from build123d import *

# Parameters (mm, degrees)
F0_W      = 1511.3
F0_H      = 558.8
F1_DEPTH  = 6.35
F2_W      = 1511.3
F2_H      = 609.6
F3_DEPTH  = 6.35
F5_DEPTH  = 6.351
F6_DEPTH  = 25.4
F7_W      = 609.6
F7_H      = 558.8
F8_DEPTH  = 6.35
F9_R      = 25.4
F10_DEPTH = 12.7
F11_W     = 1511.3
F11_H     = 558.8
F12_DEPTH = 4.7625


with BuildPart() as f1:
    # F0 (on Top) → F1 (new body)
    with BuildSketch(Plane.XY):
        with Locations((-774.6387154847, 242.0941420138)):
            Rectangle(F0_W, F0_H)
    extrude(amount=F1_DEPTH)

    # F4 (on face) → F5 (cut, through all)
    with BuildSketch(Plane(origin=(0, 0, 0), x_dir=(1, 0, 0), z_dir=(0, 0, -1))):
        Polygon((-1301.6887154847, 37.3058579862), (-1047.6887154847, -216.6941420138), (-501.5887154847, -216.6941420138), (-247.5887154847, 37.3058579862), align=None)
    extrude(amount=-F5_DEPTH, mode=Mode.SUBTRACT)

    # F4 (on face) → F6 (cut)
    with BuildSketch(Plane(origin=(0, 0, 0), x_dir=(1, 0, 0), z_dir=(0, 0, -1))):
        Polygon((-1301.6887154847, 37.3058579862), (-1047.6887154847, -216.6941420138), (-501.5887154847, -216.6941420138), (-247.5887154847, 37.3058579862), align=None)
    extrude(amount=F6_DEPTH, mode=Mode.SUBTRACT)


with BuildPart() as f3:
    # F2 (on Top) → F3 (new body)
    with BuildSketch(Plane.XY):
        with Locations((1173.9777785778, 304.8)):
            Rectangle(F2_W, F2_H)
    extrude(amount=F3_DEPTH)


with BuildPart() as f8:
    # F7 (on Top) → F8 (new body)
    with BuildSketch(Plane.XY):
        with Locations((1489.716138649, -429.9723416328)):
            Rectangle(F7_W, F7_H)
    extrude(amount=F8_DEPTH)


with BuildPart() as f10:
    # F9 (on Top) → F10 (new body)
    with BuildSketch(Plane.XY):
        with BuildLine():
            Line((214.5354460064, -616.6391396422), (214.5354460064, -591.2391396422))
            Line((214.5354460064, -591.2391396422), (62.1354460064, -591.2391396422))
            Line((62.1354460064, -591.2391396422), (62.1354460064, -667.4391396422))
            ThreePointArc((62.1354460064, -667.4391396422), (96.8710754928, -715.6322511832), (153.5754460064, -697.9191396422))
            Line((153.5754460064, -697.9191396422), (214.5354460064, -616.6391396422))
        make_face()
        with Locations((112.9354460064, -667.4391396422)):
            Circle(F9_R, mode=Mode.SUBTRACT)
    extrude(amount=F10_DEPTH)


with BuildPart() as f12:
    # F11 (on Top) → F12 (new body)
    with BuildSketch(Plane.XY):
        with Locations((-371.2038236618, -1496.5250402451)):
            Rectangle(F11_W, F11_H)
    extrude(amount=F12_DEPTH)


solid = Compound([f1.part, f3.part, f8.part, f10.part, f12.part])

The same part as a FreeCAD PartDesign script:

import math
import FreeCAD as App
import Part
import Sketcher
from FreeCAD import Vector
Q = App.Units.Quantity

doc = App.newDocument("Part")
body = doc.addObject("PartDesign::Body", "Body")

# Sketch on XY plane
sketch1 = body.newObject("Sketcher::SketchObject", "Sketch")
sketch1.AttachmentSupport = (doc.getObject("XY_Plane"), [""])
sketch1.MapMode = "FlatFace"
sketch1.addGeometry([
    Part.LineSegment(Vector(-1530.288715, 521.494142, 0), Vector(-1530.288715, -37.305858, 0)),
    Part.LineSegment(Vector(-1530.288715, -37.305858, 0), Vector(-18.988715, -37.305858, 0)),
    Part.LineSegment(Vector(-18.988715, -37.305858, 0), Vector(-18.988715, 521.494142, 0)),
    Part.LineSegment(Vector(-18.988715, 521.494142, 0), Vector(-1530.288715, 521.494142, 0)),
], False)
sketch1.addConstraint([
    Sketcher.Constraint("Coincident", 0, 2, 1, 1),
    Sketcher.Constraint("Coincident", 1, 2, 2, 1),
    Sketcher.Constraint("Coincident", 2, 2, 3, 1),
    Sketcher.Constraint("Coincident", 3, 2, 0, 1),
    Sketcher.Constraint("Vertical", 0),
    Sketcher.Constraint("Horizontal", 1),
    Sketcher.Constraint("Vertical", 2),
    Sketcher.Constraint("Horizontal", 3),
    Sketcher.Constraint("DistanceY", 0, 2, 0, 1, Q("22 in")),
    Sketcher.Constraint("DistanceX", 1, 1, 1, 2, Q("59.5 in")),
    Sketcher.Constraint("DistanceX", 0, 2, -1, 1, Q("1530.288715 mm")),
    Sketcher.Constraint("DistanceY", 0, 2, -1, 1, Q("37.305858 mm")),
])
pad1 = body.newObject("PartDesign::Pad", "Pad")
pad1.Profile = sketch1
pad1.Length = Q("0.25 in")

# Sketch on XY plane
sketch2 = body.newObject("Sketcher::SketchObject", "Sketch001")
sketch2.AttachmentSupport = (doc.getObject("XY_Plane"), [""])
sketch2.MapMode = "FlatFace"
sketch2.addGeometry([
    Part.LineSegment(Vector(-1301.688715, -37.305858, 0), Vector(-1047.688715, 216.694142, 0)),
    Part.LineSegment(Vector(-1047.688715, 216.694142, 0), Vector(-501.588715, 216.694142, 0)),
    Part.LineSegment(Vector(-501.588715, 216.694142, 0), Vector(-247.588715, -37.305858, 0)),
    Part.LineSegment(Vector(-247.588715, -37.305858, 0), Vector(-1301.688715, -37.305858, 0)),
], False)
sketch2.addConstraint([
    Sketcher.Constraint("Coincident", 0, 2, 1, 1),
    Sketcher.Constraint("Coincident", 1, 2, 2, 1),
    Sketcher.Constraint("Coincident", 2, 2, 3, 1),
    Sketcher.Constraint("Coincident", 3, 2, 0, 1),
    Sketcher.Constraint("Horizontal", 1),
    Sketcher.Constraint("Horizontal", 3),
    Sketcher.Constraint("Perpendicular", 0, 2),
    Sketcher.Constraint("Equal", 0, 2),
    Sketcher.Constraint("DistanceX", 1, 1, 1, 2, Q("21.5 in")),
    Sketcher.Constraint("DistanceX", 3, 2, 3, 1, Q("41.5 in")),
    Sketcher.Constraint("DistanceX", 0, 2, -1, 1, Q("1047.688715 mm")),
    Sketcher.Constraint("DistanceY", -1, 1, 0, 2, Q("216.694142 mm")),
])
pocket1 = body.newObject("PartDesign::Pocket", "Pocket")
pocket1.Profile = sketch2
pocket1.Type = "ThroughAll"
pocket1.Reversed = True

# Sketch on XY plane
sketch3 = body.newObject("Sketcher::SketchObject", "Sketch002")
sketch3.AttachmentSupport = (doc.getObject("XY_Plane"), [""])
sketch3.MapMode = "FlatFace"
sketch3.addGeometry([
    Part.LineSegment(Vector(-1301.688715, -37.305858, 0), Vector(-1047.688715, 216.694142, 0)),
    Part.LineSegment(Vector(-1047.688715, 216.694142, 0), Vector(-501.588715, 216.694142, 0)),
    Part.LineSegment(Vector(-501.588715, 216.694142, 0), Vector(-247.588715, -37.305858, 0)),
    Part.LineSegment(Vector(-247.588715, -37.305858, 0), Vector(-1301.688715, -37.305858, 0)),
], False)
sketch3.addConstraint([
    Sketcher.Constraint("Coincident", 0, 2, 1, 1),
    Sketcher.Constraint("Coincident", 1, 2, 2, 1),
    Sketcher.Constraint("Coincident", 2, 2, 3, 1),
    Sketcher.Constraint("Coincident", 3, 2, 0, 1),
    Sketcher.Constraint("Horizontal", 1),
    Sketcher.Constraint("Horizontal", 3),
    Sketcher.Constraint("Perpendicular", 0, 2),
    Sketcher.Constraint("Equal", 0, 2),
    Sketcher.Constraint("DistanceX", 1, 1, 1, 2, Q("21.5 in")),
    Sketcher.Constraint("DistanceX", 3, 2, 3, 1, Q("41.5 in")),
    Sketcher.Constraint("DistanceX", 0, 2, -1, 1, Q("1047.688715 mm")),
    Sketcher.Constraint("DistanceY", -1, 1, 0, 2, Q("216.694142 mm")),
])
pocket2 = body.newObject("PartDesign::Pocket", "Pocket001")
pocket2.Profile = sketch3
pocket2.Length = Q("1 in")
body2 = doc.addObject("PartDesign::Body", "Body001")

# Sketch on XY plane
sketch4 = body2.newObject("Sketcher::SketchObject", "Sketch003")
sketch4.AttachmentSupport = (doc.getObject("XY_Plane001"), [""])
sketch4.MapMode = "FlatFace"
sketch4.addGeometry([
    Part.LineSegment(Vector(418.327779, 609.6, 0), Vector(418.327779, 0, 0)),
    Part.LineSegment(Vector(418.327779, 0, 0), Vector(1929.627779, 0, 0)),
    Part.LineSegment(Vector(1929.627779, 0, 0), Vector(1929.627779, 609.6, 0)),
    Part.LineSegment(Vector(1929.627779, 609.6, 0), Vector(418.327779, 609.6, 0)),
], False)
sketch4.addConstraint([
    Sketcher.Constraint("Coincident", 0, 2, 1, 1),
    Sketcher.Constraint("Coincident", 1, 2, 2, 1),
    Sketcher.Constraint("Coincident", 2, 2, 3, 1),
    Sketcher.Constraint("Coincident", 3, 2, 0, 1),
    Sketcher.Constraint("Vertical", 0),
    Sketcher.Constraint("Horizontal", 1),
    Sketcher.Constraint("Vertical", 2),
    Sketcher.Constraint("Horizontal", 3),
    Sketcher.Constraint("PointOnObject", 0, 2, -1),
    Sketcher.Constraint("DistanceY", 0, 2, 0, 1, Q("24 in")),
    Sketcher.Constraint("DistanceX", 1, 1, 1, 2, Q("59.5 in")),
    Sketcher.Constraint("DistanceX", -1, 1, 0, 2, Q("418.327779 mm")),
])
pad2 = body2.newObject("PartDesign::Pad", "Pad001")
pad2.Profile = sketch4
pad2.Length = Q("0.25 in")
body3 = doc.addObject("PartDesign::Body", "Body002")

# Sketch on XY plane
sketch5 = body3.newObject("Sketcher::SketchObject", "Sketch004")
sketch5.AttachmentSupport = (doc.getObject("XY_Plane002"), [""])
sketch5.MapMode = "FlatFace"
sketch5.addGeometry([
    Part.LineSegment(Vector(1184.916139, -150.572342, 0), Vector(1184.916139, -709.372342, 0)),
    Part.LineSegment(Vector(1184.916139, -709.372342, 0), Vector(1794.516139, -709.372342, 0)),
    Part.LineSegment(Vector(1794.516139, -709.372342, 0), Vector(1794.516139, -150.572342, 0)),
    Part.LineSegment(Vector(1794.516139, -150.572342, 0), Vector(1184.916139, -150.572342, 0)),
], False)
sketch5.addConstraint([
    Sketcher.Constraint("Coincident", 0, 2, 1, 1),
    Sketcher.Constraint("Coincident", 1, 2, 2, 1),
    Sketcher.Constraint("Coincident", 2, 2, 3, 1),
    Sketcher.Constraint("Coincident", 3, 2, 0, 1),
    Sketcher.Constraint("Vertical", 0),
    Sketcher.Constraint("Horizontal", 1),
    Sketcher.Constraint("Vertical", 2),
    Sketcher.Constraint("Horizontal", 3),
    Sketcher.Constraint("DistanceX", 1, 1, 1, 2, Q("24 in")),
    Sketcher.Constraint("DistanceY", 0, 2, 0, 1, Q("22 in")),
    Sketcher.Constraint("DistanceX", -1, 1, 0, 2, Q("1184.916139 mm")),
    Sketcher.Constraint("DistanceY", 0, 2, -1, 1, Q("709.372342 mm")),
])
pad3 = body3.newObject("PartDesign::Pad", "Pad002")
pad3.Profile = sketch5
pad3.Length = Q("0.25 in")
body4 = doc.addObject("PartDesign::Body", "Body003")

# Sketch on XY plane
sketch6 = body4.newObject("Sketcher::SketchObject", "Sketch005")
sketch6.AttachmentSupport = (doc.getObject("XY_Plane003"), [""])
sketch6.MapMode = "FlatFace"
sketch6.addGeometry([
    Part.LineSegment(Vector(214.535446, -616.63914, 0), Vector(214.535446, -591.23914, 0)),  # 0
    Part.LineSegment(Vector(214.535446, -591.23914, 0), Vector(62.135446, -591.23914, 0)),  # 1
    Part.LineSegment(Vector(62.135446, -591.23914, 0), Vector(62.135446, -667.43914, 0)),  # 2
    Part.ArcOfCircle(Part.Circle(Vector(112.935446, -667.43914, 0), Vector(0, 0, 1), 50.8), math.radians(180), math.radians(323.130102)),  # 3
    Part.LineSegment(Vector(153.575446, -697.91914, 0), Vector(214.535446, -616.63914, 0)),  # 4
    Part.Circle(Vector(112.935446, -667.43914, 0), Vector(0, 0, 1), 25.4),  # 5
], False)
sketch6.addConstraint([
    Sketcher.Constraint("Coincident", 0, 2, 1, 1),
    Sketcher.Constraint("Coincident", 1, 2, 2, 1),
    Sketcher.Constraint("Tangent", 2, 2, 3, 1),
    Sketcher.Constraint("Tangent", 3, 2, 4, 1),
    Sketcher.Constraint("Coincident", 4, 2, 0, 1),
    Sketcher.Constraint("Vertical", 0),
    Sketcher.Constraint("Horizontal", 1),
    Sketcher.Constraint("Vertical", 2),
    Sketcher.Constraint("Coincident", 5, 3, 3, 3),
    Sketcher.Constraint("Diameter", 5, Q("2 in")),
    Sketcher.Constraint("Radius", 3, Q("2 in")),
    Sketcher.Constraint("DistanceX", 1, 2, 1, 1, Q("6 in")),
    Sketcher.Constraint("DistanceY", 0, 1, 0, 2, Q("1 in")),
    Sketcher.Constraint("DistanceY", 2, 2, 2, 1, Q("3 in")),
    Sketcher.Constraint("DistanceY", 3, 3, -1, 1, Q("667.43914 mm")),
    Sketcher.Constraint("DistanceX", -1, 1, 3, 3, Q("112.935446 mm")),
])
pad4 = body4.newObject("PartDesign::Pad", "Pad003")
pad4.Profile = sketch6
pad4.Length = Q("0.5 in")
body5 = doc.addObject("PartDesign::Body", "Body004")

# Sketch on XY plane
sketch7 = body5.newObject("Sketcher::SketchObject", "Sketch006")
sketch7.AttachmentSupport = (doc.getObject("XY_Plane004"), [""])
sketch7.MapMode = "FlatFace"
sketch7.addGeometry([
    Part.LineSegment(Vector(-1126.853824, -1217.12504, 0), Vector(-1126.853824, -1775.92504, 0)),
    Part.LineSegment(Vector(-1126.853824, -1775.92504, 0), Vector(384.446176, -1775.92504, 0)),
    Part.LineSegment(Vector(384.446176, -1775.92504, 0), Vector(384.446176, -1217.12504, 0)),
    Part.LineSegment(Vector(384.446176, -1217.12504, 0), Vector(-1126.853824, -1217.12504, 0)),
], False)
sketch7.addConstraint([
    Sketcher.Constraint("Coincident", 0, 2, 1, 1),
    Sketcher.Constraint("Coincident", 1, 2, 2, 1),
    Sketcher.Constraint("Coincident", 2, 2, 3, 1),
    Sketcher.Constraint("Coincident", 3, 2, 0, 1),
    Sketcher.Constraint("Vertical", 0),
    Sketcher.Constraint("Horizontal", 1),
    Sketcher.Constraint("Vertical", 2),
    Sketcher.Constraint("Horizontal", 3),
    Sketcher.Constraint("DistanceY", 0, 2, 0, 1, Q("22 in")),
    Sketcher.Constraint("DistanceX", 1, 1, 1, 2, Q("59.5 in")),
    Sketcher.Constraint("DistanceY", 0, 2, -1, 1, Q("1775.92504 mm")),
    Sketcher.Constraint("DistanceX", 0, 2, -1, 1, Q("1126.853824 mm")),
])
pad5 = body5.newObject("PartDesign::Pad", "Pad004")
pad5.Profile = sketch7
pad5.Length = Q("0.1875 in")

doc.recompute()
